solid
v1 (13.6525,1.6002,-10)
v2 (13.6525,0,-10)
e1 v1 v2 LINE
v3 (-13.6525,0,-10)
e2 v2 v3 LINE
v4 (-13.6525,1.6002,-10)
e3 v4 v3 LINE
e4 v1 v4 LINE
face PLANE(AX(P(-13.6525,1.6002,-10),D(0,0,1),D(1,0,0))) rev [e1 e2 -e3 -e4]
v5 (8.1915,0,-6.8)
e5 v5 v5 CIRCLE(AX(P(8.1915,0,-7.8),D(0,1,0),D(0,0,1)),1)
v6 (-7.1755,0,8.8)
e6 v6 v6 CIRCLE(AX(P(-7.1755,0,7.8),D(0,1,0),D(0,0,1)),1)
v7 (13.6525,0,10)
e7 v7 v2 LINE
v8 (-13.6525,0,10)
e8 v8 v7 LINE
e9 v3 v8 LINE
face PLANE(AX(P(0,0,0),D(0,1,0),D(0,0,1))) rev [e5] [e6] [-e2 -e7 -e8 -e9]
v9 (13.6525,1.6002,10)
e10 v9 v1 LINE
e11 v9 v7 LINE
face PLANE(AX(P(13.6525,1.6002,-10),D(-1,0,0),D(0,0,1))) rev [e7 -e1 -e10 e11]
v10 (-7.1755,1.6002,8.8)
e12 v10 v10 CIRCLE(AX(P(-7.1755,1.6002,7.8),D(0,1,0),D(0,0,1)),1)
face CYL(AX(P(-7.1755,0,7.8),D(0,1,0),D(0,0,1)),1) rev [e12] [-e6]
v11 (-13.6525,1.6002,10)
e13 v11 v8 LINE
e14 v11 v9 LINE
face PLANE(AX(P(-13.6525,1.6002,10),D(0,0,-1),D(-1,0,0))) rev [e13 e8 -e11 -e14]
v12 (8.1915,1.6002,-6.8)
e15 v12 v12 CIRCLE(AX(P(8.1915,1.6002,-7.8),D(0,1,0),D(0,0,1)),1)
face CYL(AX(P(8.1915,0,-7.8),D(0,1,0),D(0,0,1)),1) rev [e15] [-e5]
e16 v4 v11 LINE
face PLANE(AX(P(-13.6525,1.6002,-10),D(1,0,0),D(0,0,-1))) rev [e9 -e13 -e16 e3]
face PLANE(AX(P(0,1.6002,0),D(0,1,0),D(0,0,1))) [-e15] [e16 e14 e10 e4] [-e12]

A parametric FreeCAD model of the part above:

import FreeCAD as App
import Part
import Sketcher
Q = App.Units.Quantity

doc = App.newDocument("Part")
body = doc.addObject("PartDesign::Body", "Body")

# Sketch on XZ plane
sketch1 = body.newObject("Sketcher::SketchObject", "Sketch")
sketch1.AttachmentSupport = (doc.getObject("XZ_Plane"), [""])
sketch1.MapMode = "FlatFace"
sketch1.addGeometry([
    Part.LineSegment(App.Vector(-13.6525, -10, 0), App.Vector(-13.6525, 10, 0)),
    Part.LineSegment(App.Vector(-13.6525, 10, 0), App.Vector(13.6525, 10, 0)),
    Part.LineSegment(App.Vector(13.6525, 10, 0), App.Vector(13.6525, -10, 0)),
    Part.LineSegment(App.Vector(13.6525, -10, 0), App.Vector(-13.6525, -10, 0)),
], False)
sketch1.addConstraint([
    Sketcher.Constraint("Coincident", 0, 2, 1, 1),
    Sketcher.Constraint("Coincident", 1, 2, 2, 1),
    Sketcher.Constraint("Coincident", 2, 2, 3, 1),
    Sketcher.Constraint("Coincident", 3, 2, 0, 1),
    Sketcher.Constraint("Vertical", 0),
    Sketcher.Constraint("Horizontal", 1),
    Sketcher.Constraint("Vertical", 2),
    Sketcher.Constraint("Horizontal", 3),
    Sketcher.Constraint("Symmetric", 0, 2, 2, 2, -1, 1),
    Sketcher.Constraint("DistanceY", 0, 1, 0, 2, Q("20 mm")),
    Sketcher.Constraint("DistanceX", 1, 1, 1, 2, Q("27.305 mm")),
])
pad1 = body.newObject("PartDesign::Pad", "Pad")
pad1.Profile = sketch1
pad1.Length = 1.6002
pad1.Reversed = True

# Sketch on XZ plane
sketch2 = body.newObject("Sketcher::SketchObject", "Sketch001")
sketch2.AttachmentSupport = (doc.getObject("XZ_Plane"), [""])
sketch2.MapMode = "FlatFace"
sketch2.AttachmentOffset = App.Placement(App.Vector(0, 0, -1.6002), App.Rotation())
sketch2.addGeometry([
    Part.Circle(App.Vector(-7.1755, 7.8, 0), App.Vector(0, 0, 1), 1),
    Part.Circle(App.Vector(8.1915, -7.8, 0), App.Vector(0, 0, 1), 1),
], False)
sketch2.addConstraint([
    Sketcher.Constraint("Equal", 0, 1),
    Sketcher.Constraint("Diameter", 0, Q("2 mm")),
    Sketcher.Constraint("DistanceY", -1, 1, 0, 3, Q("7.8 mm")),
    Sketcher.Constraint("DistanceY", 1, 3, -1, 1, Q("7.8 mm")),
    Sketcher.Constraint("DistanceX", 0, 3, 1, 3, Q("15.367 mm")),
    Sketcher.Constraint("DistanceX", 0, 3, -1, 1, Q("7.1755 mm")),
])
pocket1 = body.newObject("PartDesign::Pocket", "Pocket")
pocket1.Profile = sketch2
pocket1.Length = 1.6002
pocket1.Reversed = True

doc.recompute()
